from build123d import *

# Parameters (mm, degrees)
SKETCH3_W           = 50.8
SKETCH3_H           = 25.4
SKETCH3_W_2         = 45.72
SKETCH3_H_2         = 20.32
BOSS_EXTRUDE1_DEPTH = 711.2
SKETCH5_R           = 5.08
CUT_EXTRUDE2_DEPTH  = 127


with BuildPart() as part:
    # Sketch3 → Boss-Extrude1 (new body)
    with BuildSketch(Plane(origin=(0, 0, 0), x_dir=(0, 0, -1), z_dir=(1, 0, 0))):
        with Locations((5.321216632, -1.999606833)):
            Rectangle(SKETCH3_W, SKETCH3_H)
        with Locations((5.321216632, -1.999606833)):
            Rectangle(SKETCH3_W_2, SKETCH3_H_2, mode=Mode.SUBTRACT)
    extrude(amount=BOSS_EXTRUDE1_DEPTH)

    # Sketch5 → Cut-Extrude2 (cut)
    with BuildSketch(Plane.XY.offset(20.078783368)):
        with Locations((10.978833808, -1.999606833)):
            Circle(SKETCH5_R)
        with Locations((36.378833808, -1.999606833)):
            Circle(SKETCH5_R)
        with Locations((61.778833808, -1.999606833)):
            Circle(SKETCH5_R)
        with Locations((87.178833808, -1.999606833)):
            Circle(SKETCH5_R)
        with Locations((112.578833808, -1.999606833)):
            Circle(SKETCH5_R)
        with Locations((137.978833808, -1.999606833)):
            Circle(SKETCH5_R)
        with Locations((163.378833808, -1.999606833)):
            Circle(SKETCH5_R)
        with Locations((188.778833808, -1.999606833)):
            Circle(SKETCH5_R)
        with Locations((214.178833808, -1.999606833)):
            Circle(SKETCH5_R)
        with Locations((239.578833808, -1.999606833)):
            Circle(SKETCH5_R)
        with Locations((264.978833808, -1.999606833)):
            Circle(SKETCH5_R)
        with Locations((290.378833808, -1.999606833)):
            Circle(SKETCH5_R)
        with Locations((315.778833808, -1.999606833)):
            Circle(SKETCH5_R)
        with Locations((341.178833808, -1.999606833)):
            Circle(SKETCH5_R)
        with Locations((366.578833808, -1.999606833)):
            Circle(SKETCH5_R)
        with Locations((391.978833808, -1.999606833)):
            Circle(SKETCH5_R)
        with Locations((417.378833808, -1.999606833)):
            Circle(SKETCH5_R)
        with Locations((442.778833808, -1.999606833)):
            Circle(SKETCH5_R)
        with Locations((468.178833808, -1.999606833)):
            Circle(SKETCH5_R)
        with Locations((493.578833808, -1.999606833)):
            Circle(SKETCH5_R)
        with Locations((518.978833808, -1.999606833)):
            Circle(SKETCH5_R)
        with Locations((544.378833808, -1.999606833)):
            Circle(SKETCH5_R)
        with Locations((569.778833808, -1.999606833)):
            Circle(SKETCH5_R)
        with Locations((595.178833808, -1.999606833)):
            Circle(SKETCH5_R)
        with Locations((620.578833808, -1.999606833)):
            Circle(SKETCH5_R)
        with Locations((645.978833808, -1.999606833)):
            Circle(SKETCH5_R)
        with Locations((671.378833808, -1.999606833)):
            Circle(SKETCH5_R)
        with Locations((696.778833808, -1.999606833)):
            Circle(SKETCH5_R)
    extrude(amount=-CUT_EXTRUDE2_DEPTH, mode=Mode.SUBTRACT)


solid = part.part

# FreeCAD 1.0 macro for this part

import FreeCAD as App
import Part
import Sketcher

V = App.Vector
Q = App.Units.Quantity


def add_polygon(sketch, points):
    """Adds a closed chain of lines whose ends are joined by coincident constraints."""
    first, n = sketch.GeometryCount, len(points)
    for a, b in zip(points, points[1:] + points[:1]):
        sketch.addGeometry(Part.LineSegment(App.Vector(*a, 0), App.Vector(*b, 0)), False)
    for i in range(n):
        sketch.addConstraint(Sketcher.Constraint("Coincident", first + i, 2, first + (i + 1) % n, 1))

doc = App.newDocument("Part")
body = doc.addObject("PartDesign::Body", "Body")

# Sketch on YZ plane
sketch1 = doc.addObject("Sketcher::SketchObject", "Sketch")
body.addObject(sketch1)
sketch1.AttachmentSupport = (doc.YZ_Plane, [""])
sketch1.MapMode = "FlatFace"
add_polygon(sketch1, [(11, 20), (-15, 20), (-15, -31), (11, -31)])  # lines 0-3
add_polygon(sketch1, [(-12, -28), (-12, 18), (8, 18), (8, -28)])  # lines 4-7
sketch1.addConstraint([
    Sketcher.Constraint("Horizontal", 0),
    Sketcher.Constraint("Vertical", 1),
    Sketcher.Constraint("Horizontal", 2),
    Sketcher.Constraint("Vertical", 3),
    Sketcher.Constraint("Vertical", 4),
    Sketcher.Constraint("Horizontal", 5),
    Sketcher.Constraint("Vertical", 6),
    Sketcher.Constraint("Horizontal", 7),
    Sketcher.Constraint("DistanceX", 0, 2, 0, 1, Q("1 in")),
    Sketcher.Constraint("DistanceY", 1, 2, 1, 1, Q("2 in")),
    Sketcher.Constraint("DistanceX", 5, 1, 5, 2, Q("0.8 in")),
    Sketcher.Constraint("DistanceY", 4, 1, 4, 2, Q("1.8 in")),
    Sketcher.Constraint("DistanceX", 0, 2, 4, 2, Q("0.1 in")),
    Sketcher.Constraint("DistanceY", 4, 2, 0, 2, Q("0.1 in")),
    Sketcher.Constraint("DistanceX", 0, 2, -1, 1, 14.699607),
    Sketcher.Constraint("DistanceY", -1, 1, 0, 2, 20.078783),
])
pad1 = doc.addObject("PartDesign::Pad", "Pad")
body.addObject(pad1)
pad1.Profile = sketch1
pad1.Length = Q("28 in")

# Sketch on XY plane
sketch2 = doc.addObject("Sketcher::SketchObject", "Sketch001")
body.addObject(sketch2)
sketch2.AttachmentSupport = (doc.XY_Plane, [""])
sketch2.MapMode = "FlatFace"
sketch2.AttachmentOffset = App.Placement(V(0, 0, 20.078783), App.Rotation())
sketch2.addGeometry([
    Part.Circle(V(11, -2, 0), V(0, 0, 1), 5),  # 0
    Part.Circle(V(36, -2, 0), V(0, 0, 1), 5),  # 1
    Part.Circle(V(62, -2, 0), V(0, 0, 1), 5),  # 2
    Part.Circle(V(87, -2, 0), V(0, 0, 1), 5),  # 3
    Part.Circle(V(113, -2, 0), V(0, 0, 1), 5),  # 4
    Part.Circle(V(138, -2, 0), V(0, 0, 1), 5),  # 5
    Part.Circle(V(163, -2, 0), V(0, 0, 1), 5),  # 6
    Part.Circle(V(189, -2, 0), V(0, 0, 1), 5),  # 7
    Part.Circle(V(214, -2, 0), V(0, 0, 1), 5),  # 8
    Part.Circle(V(240, -2, 0), V(0, 0, 1), 5),  # 9
    Part.Circle(V(265, -2, 0), V(0, 0, 1), 5),  # 10
    Part.Circle(V(290, -2, 0), V(0, 0, 1), 5),  # 11
    Part.Circle(V(316, -2, 0), V(0, 0, 1), 5),  # 12
    Part.Circle(V(341, -2, 0), V(0, 0, 1), 5),  # 13
    Part.Circle(V(367, -2, 0), V(0, 0, 1), 5),  # 14
    Part.Circle(V(392, -2, 0), V(0, 0, 1), 5),  # 15
    Part.Circle(V(417, -2, 0), V(0, 0, 1), 5),  # 16
    Part.Circle(V(443, -2, 0), V(0, 0, 1), 5),  # 17
    Part.Circle(V(468, -2, 0), V(0, 0, 1), 5),  # 18
    Part.Circle(V(494, -2, 0), V(0, 0, 1), 5),  # 19
    Part.Circle(V(519, -2, 0), V(0, 0, 1), 5),  # 20
    Part.Circle(V(544, -2, 0), V(0, 0, 1), 5),  # 21
    Part.Circle(V(570, -2, 0), V(0, 0, 1), 5),  # 22
    Part.Circle(V(595, -2, 0), V(0, 0, 1), 5),  # 23
    Part.Circle(V(621, -2, 0), V(0, 0, 1), 5),  # 24
    Part.Circle(V(646, -2, 0), V(0, 0, 1), 5),  # 25
    Part.Circle(V(671, -2, 0), V(0, 0, 1), 5),  # 26
    Part.Circle(V(697, -2, 0), V(0, 0, 1), 5),  # 27
], False)
sketch2.addConstraint([
    Sketcher.Constraint("Equal", 0, 1),
    Sketcher.Constraint("Equal", 1, 2),
    Sketcher.Constraint("Equal", 2, 3),
    Sketcher.Constraint("Equal", 3, 4),
    Sketcher.Constraint("Equal", 4, 5),
    Sketcher.Constraint("Equal", 5, 6),
    Sketcher.Constraint("Equal", 6, 7),
    Sketcher.Constraint("Equal", 7, 8),
    Sketcher.Constraint("Equal", 8, 9),
    Sketcher.Constraint("Equal", 9, 10),
    Sketcher.Constraint("Equal", 10, 11),
    Sketcher.Constraint("Equal", 11, 12),
    Sketcher.Constraint("Equal", 12, 13),
    Sketcher.Constraint("Equal", 13, 14),
    Sketcher.Constraint("Equal", 14, 15),
    Sketcher.Constraint("Equal", 15, 16),
    Sketcher.Constraint("Equal", 16, 17),
    Sketcher.Constraint("Equal", 17, 18),
    Sketcher.Constraint("Equal", 18, 19),
    Sketcher.Constraint("Equal", 19, 20),
    Sketcher.Constraint("Equal", 20, 21),
    Sketcher.Constraint("Equal", 21, 22),
    Sketcher.Constraint("Equal", 22, 23),
    Sketcher.Constraint("Equal", 23, 24),
    Sketcher.Constraint("Equal", 24, 25),
    Sketcher.Constraint("Equal", 25, 26),
    Sketcher.Constraint("Equal", 26, 27),
    Sketcher.Constraint("Horizontal", 0, 3, 1, 3),
    Sketcher.Constraint("Horizontal", 1, 3, 2, 3),
    Sketcher.Constraint("Horizontal", 2, 3, 3, 3),
    Sketcher.Constraint("Horizontal", 3, 3, 4, 3),
    Sketcher.Constraint("Horizontal", 4, 3, 5, 3),
    Sketcher.Constraint("Horizontal", 5, 3, 6, 3),
    Sketcher.Constraint("Horizontal", 6, 3, 7, 3),
    Sketcher.Constraint("Horizontal", 7, 3, 8, 3),
    Sketcher.Constraint("Horizontal", 8, 3, 9, 3),
    Sketcher.Constraint("Horizontal", 9, 3, 10, 3),
    Sketcher.Constraint("Horizontal", 10, 3, 11, 3),
    Sketcher.Constraint("Horizontal", 11, 3, 12, 3),
    Sketcher.Constraint("Horizontal", 12, 3, 13, 3),
    Sketcher.Constraint("Horizontal", 13, 3, 14, 3),
    Sketcher.Constraint("Horizontal", 14, 3, 15, 3),
    Sketcher.Constraint("Horizontal", 15, 3, 16, 3),
    Sketcher.Constraint("Horizontal", 16, 3, 17, 3),
    Sketcher.Constraint("Horizontal", 17, 3, 18, 3),
    Sketcher.Constraint("Horizontal", 18, 3, 19, 3),
    Sketcher.Constraint("Horizontal", 19, 3, 20, 3),
    Sketcher.Constraint("Horizontal", 20, 3, 21, 3),
    Sketcher.Constraint("Horizontal", 21, 3, 22, 3),
    Sketcher.Constraint("Horizontal", 22, 3, 23, 3),
    Sketcher.Constraint("Horizontal", 23, 3, 24, 3),
    Sketcher.Constraint("Horizontal", 24, 3, 25, 3),
    Sketcher.Constraint("Horizontal", 25, 3, 26, 3),
    Sketcher.Constraint("Horizontal", 26, 3, 27, 3),
    Sketcher.Constraint("Diameter", 0, Q("0.4 in")),
    Sketcher.Constraint("DistanceX", 0, 3, 1, 3, Q("1 in")),
    Sketcher.Constraint("DistanceX", 1, 3, 2, 3, Q("1 in")),
    Sketcher.Constraint("DistanceX", 2, 3, 3, 3, Q("1 in")),
    Sketcher.Constraint("DistanceX", 3, 3, 4, 3, Q("1 in")),
    Sketcher.Constraint("DistanceX", 4, 3, 5, 3, Q("1 in")),
    Sketcher.Constraint("DistanceX", 5, 3, 6, 3, Q("1 in")),
    Sketcher.Constraint("DistanceX", 6, 3, 7, 3, Q("1 in")),
    Sketcher.Constraint("DistanceX", 7, 3, 8, 3, Q("1 in")),
    Sketcher.Constraint("DistanceX", 8, 3, 9, 3, Q("1 in")),
    Sketcher.Constraint("DistanceX", 9, 3, 10, 3, Q("1 in")),
    Sketcher.Constraint("DistanceX", 10, 3, 11, 3, Q("1 in")),
    Sketcher.Constraint("DistanceX", 11, 3, 12, 3, Q("1 in")),
    Sketcher.Constraint("DistanceX", 12, 3, 13, 3, Q("1 in")),
    Sketcher.Constraint("DistanceX", 13, 3, 14, 3, Q("1 in")),
    Sketcher.Constraint("DistanceX", 14, 3, 15, 3, Q("1 in")),
    Sketcher.Constraint("DistanceX", 15, 3, 16, 3, Q("1 in")),
    Sketcher.Constraint("DistanceX", 16, 3, 17, 3, Q("1 in")),
    Sketcher.Constraint("DistanceX", 17, 3, 18, 3, Q("1 in")),
    Sketcher.Constraint("DistanceX", 18, 3, 19, 3, Q("1 in")),
    Sketcher.Constraint("DistanceX", 19, 3, 20, 3, Q("1 in")),
    Sketcher.Constraint("DistanceX", 20, 3, 21, 3, Q("1 in")),
    Sketcher.Constraint("DistanceX", 21, 3, 22, 3, Q("1 in")),
    Sketcher.Constraint("DistanceX", 22, 3, 23, 3, Q("1 in")),
    Sketcher.Constraint("DistanceX", 23, 3, 24, 3, Q("1 in")),
    Sketcher.Constraint("DistanceX", 24, 3, 25, 3, Q("1 in")),
    Sketcher.Constraint("DistanceX", 25, 3, 26, 3, Q("1 in")),
    Sketcher.Constraint("DistanceX", 26, 3, 27, 3, Q("1 in")),
    Sketcher.Constraint("DistanceX", -1, 1, 0, 3, 10.978834),
    Sketcher.Constraint("DistanceY", 0, 3, -1, 1, 1.999607),
])
pocket1 = doc.addObject("PartDesign::Pocket", "Pocket")
body.addObject(pocket1)
pocket1.Profile = sketch2
pocket1.Length = Q("5 in")

doc.recompute()
